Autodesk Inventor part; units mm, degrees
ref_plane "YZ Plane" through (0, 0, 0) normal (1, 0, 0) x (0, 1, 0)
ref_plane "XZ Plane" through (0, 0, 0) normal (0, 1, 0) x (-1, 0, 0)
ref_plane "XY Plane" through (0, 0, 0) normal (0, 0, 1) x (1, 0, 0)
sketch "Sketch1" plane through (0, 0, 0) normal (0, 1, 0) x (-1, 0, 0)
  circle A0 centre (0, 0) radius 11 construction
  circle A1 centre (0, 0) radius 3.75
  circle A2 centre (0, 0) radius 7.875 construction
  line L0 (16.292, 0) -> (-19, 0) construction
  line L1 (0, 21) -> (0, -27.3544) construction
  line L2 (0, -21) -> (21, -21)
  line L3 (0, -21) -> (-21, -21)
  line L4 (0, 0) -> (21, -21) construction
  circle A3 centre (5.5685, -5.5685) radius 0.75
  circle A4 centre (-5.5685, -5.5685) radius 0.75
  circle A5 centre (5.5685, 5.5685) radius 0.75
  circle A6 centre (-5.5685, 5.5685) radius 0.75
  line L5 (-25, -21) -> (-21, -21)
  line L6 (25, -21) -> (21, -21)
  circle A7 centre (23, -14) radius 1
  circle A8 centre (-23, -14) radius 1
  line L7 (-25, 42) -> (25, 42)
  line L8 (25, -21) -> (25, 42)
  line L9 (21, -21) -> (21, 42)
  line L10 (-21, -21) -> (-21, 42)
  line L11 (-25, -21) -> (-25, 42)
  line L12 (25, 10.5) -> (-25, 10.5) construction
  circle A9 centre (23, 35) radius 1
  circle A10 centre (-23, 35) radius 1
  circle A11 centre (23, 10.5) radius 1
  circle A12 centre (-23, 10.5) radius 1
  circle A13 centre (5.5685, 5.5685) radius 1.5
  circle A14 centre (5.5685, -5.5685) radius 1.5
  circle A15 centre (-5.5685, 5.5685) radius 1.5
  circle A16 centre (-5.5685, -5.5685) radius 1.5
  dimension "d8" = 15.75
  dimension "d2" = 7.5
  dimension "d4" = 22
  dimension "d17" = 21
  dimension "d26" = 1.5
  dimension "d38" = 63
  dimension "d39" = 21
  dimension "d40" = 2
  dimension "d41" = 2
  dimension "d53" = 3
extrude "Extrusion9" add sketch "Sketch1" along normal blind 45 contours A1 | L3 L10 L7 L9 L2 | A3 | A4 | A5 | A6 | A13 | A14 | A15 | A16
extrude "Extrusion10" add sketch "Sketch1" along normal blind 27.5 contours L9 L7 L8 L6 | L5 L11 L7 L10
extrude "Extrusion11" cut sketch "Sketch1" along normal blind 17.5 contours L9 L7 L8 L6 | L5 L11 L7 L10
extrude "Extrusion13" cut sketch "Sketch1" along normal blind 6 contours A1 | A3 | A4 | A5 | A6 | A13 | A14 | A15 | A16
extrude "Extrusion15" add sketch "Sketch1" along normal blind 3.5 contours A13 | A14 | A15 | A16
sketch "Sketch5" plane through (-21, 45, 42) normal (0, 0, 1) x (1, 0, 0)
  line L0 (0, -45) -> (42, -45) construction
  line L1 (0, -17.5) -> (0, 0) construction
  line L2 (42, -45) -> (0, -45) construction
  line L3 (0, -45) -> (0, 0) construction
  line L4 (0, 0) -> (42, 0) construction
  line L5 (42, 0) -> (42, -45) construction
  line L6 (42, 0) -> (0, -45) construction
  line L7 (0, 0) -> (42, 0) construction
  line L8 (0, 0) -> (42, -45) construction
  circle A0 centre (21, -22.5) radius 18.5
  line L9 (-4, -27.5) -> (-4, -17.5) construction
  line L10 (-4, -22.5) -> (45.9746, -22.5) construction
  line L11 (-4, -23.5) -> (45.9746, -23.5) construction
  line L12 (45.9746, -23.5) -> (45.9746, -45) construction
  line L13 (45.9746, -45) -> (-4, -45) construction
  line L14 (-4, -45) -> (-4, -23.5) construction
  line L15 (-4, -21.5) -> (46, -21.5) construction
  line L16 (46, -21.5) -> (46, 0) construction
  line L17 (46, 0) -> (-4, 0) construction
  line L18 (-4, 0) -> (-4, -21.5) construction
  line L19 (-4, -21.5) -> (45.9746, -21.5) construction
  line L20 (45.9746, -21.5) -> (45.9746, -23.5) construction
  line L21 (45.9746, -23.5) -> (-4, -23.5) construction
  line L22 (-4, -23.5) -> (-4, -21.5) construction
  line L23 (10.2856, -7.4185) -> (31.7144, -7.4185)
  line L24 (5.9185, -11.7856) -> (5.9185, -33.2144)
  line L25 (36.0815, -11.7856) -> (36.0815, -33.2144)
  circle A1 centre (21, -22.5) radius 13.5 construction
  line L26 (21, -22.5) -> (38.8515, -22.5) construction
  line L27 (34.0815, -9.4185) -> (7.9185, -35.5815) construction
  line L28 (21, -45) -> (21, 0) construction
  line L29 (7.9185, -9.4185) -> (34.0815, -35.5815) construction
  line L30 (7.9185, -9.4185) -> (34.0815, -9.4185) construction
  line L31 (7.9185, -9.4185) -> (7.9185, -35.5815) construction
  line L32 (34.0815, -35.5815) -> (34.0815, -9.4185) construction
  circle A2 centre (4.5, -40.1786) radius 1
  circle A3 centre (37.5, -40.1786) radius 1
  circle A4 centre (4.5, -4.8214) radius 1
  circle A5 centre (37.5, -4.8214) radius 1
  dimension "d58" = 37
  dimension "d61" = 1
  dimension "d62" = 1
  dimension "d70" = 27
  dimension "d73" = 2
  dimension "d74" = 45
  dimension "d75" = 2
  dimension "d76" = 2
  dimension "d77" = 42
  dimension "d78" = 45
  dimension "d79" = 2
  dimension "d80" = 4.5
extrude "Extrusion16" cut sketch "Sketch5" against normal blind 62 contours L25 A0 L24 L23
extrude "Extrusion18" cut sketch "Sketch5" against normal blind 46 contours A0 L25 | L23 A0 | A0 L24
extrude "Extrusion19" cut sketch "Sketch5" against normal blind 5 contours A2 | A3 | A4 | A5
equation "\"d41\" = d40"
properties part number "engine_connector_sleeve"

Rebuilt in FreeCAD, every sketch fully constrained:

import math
import FreeCAD as App
import Part
import Sketcher
from FreeCAD import Vector
Q = App.Units.Quantity


def add_polygon(sketch, points):
    """Adds a closed chain of lines whose ends are joined by coincident constraints."""
    first, n = sketch.GeometryCount, len(points)
    for a, b in zip(points, points[1:] + points[:1]):
        sketch.addGeometry(Part.LineSegment(App.Vector(*a, 0), App.Vector(*b, 0)), False)
    for i in range(n):
        sketch.addConstraint(Sketcher.Constraint("Coincident", first + i, 2, first + (i + 1) % n, 1))

doc = App.newDocument("Part")
params = doc.addObject("Spreadsheet::Sheet", "Params")
for row, (alias, value) in enumerate([
    ("sketch1_height", "63 mm"),
    ("pad1_length", "45 mm"),
    ("sketch2_diameter", "2 mm"),
    ("sketch2_height", "63 mm"),
    ("pad2_length", "27.5 mm"),
    ("sketch3_diameter", "2 mm"),
    ("sketch3_height", "63 mm"),
    ("pocket1_length", "17.5 mm"),
    ("sketch4_diameter", "3 mm"),
    ("sketch4_diameter2", "7.5 mm"),
    ("pocket2_length", "6 mm"),
    ("sketch5_diameter", "3 mm"),
    ("sketch5_diameter2", "1.5 mm"),
    ("pad3_length", "3.5 mm"),
    ("sketch6_radius", "18.5 mm"),
    ("pocket3_length", "62 mm"),
    ("sketch7_radius", "18.5 mm"),
    ("pocket4_length", "46 mm"),
    ("sketch8_diameter", "2 mm"),
    ("pocket5_length", "5 mm"),
], start=1):
    params.set(f"A{row}", alias)
    params.set(f"B{row}", "=" + value)
    params.setAlias(f"B{row}", alias)

body = doc.addObject("PartDesign::Body", "Body")

# Sketch on XZ plane
sketch1 = body.newObject("Sketcher::SketchObject", "Sketch")
sketch1.AttachmentSupport = (doc.getObject("XZ_Plane"), [""])
sketch1.MapMode = "FlatFace"
add_polygon(sketch1, [(21, -21), (-21, -21), (-21, 42), (21, 42)])  # lines 0-3
sketch1.addConstraint([
    Sketcher.Constraint("Horizontal", 0),
    Sketcher.Constraint("Vertical", 1),
    Sketcher.Constraint("Horizontal", 2),
    Sketcher.Constraint("Vertical", 3),
    Sketcher.Constraint("DistanceY", 1, 1, 1, 2, Q("63 mm")),
    Sketcher.Constraint("DistanceX", 0, 2, -1, 1, Q("21 mm")),
    Sketcher.Constraint("DistanceY", 0, 2, -1, 1, Q("21 mm")),
    Sketcher.Constraint("DistanceX", -1, 1, 2, 2, Q("21 mm")),
])
sketch1.setExpression("Constraints[8]", "Params.sketch1_height")
pad1 = body.newObject("PartDesign::Pad", "Pad")
pad1.Profile = sketch1
pad1.setExpression("Length", "Params.pad1_length")
pad1.Reversed = True

# Sketch on XZ plane
sketch2 = body.newObject("Sketcher::SketchObject", "Sketch001")
sketch2.AttachmentSupport = (doc.getObject("XZ_Plane"), [""])
sketch2.MapMode = "FlatFace"
add_polygon(sketch2, [(-21, 42), (-21, -21), (-25, -21), (-25, 42)])  # lines 0-3
sketch2.addGeometry(Part.Circle(Vector(-23, -14, 0), Vector(0, 0, 1), 1), False)  # 4
sketch2.addGeometry(Part.Circle(Vector(-23, 10.5, 0), Vector(0, 0, 1), 1), False)  # 5
sketch2.addGeometry(Part.Circle(Vector(-23, 35, 0), Vector(0, 0, 1), 1), False)  # 6
add_polygon(sketch2, [(25, -21), (21, -21), (21, 42), (25, 42)])  # lines 7-10
sketch2.addGeometry(Part.Circle(Vector(23, -14, 0), Vector(0, 0, 1), 1), False)  # 11
sketch2.addGeometry(Part.Circle(Vector(23, 10.5, 0), Vector(0, 0, 1), 1), False)  # 12
sketch2.addGeometry(Part.Circle(Vector(23, 35, 0), Vector(0, 0, 1), 1), False)  # 13
sketch2.addConstraint([
    Sketcher.Constraint("Vertical", 0),
    Sketcher.Constraint("Horizontal", 1),
    Sketcher.Constraint("Vertical", 2),
    Sketcher.Constraint("Horizontal", 3),
    Sketcher.Constraint("Horizontal", 7),
    Sketcher.Constraint("Vertical", 8),
    Sketcher.Constraint("Horizontal", 9),
    Sketcher.Constraint("Vertical", 10),
    Sketcher.Constraint("Equal", 4, 5),
    Sketcher.Constraint("Equal", 5, 6),
    Sketcher.Constraint("Equal", 6, 11),
    Sketcher.Constraint("Equal", 11, 12),
    Sketcher.Constraint("Equal", 12, 13),
    Sketcher.Constraint("Symmetric", 4, 3, 11, 3, -2),
    Sketcher.Constraint("Symmetric", 5, 3, 12, 3, -2),
    Sketcher.Constraint("Symmetric", 6, 3, 13, 3, -2),
    Sketcher.Constraint("Symmetric", 0, 2, 7, 2, -2),
    Sketcher.Constraint("Symmetric", 2, 2, 9, 2, -2),
    Sketcher.Constraint("Vertical", 4, 3, 5, 3),
    Sketcher.Constraint("Vertical", 5, 3, 6, 3),
    Sketcher.Constraint("Diameter", 4, Q("2 mm")),
    Sketcher.Constraint("DistanceY", 0, 2, 0, 1, Q("63 mm")),
    Sketcher.Constraint("DistanceX", 0, 2, -1, 1, Q("21 mm")),
    Sketcher.Constraint("DistanceY", 0, 2, -1, 1, Q("21 mm")),
    Sketcher.Constraint("DistanceX", 4, 3, 0, 2, Q("2 mm")),
    Sketcher.Constraint("DistanceX", 1, 2, 4, 3, Q("2 mm")),
    Sketcher.Constraint("DistanceY", 4, 3, -1, 1, Q("14 mm")),
    Sketcher.Constraint("DistanceY", -1, 1, 6, 3, Q("35 mm")),
    Sketcher.Constraint("DistanceY", -1, 1, 5, 3, Q("10.5 mm")),
])
sketch2.setExpression("Constraints[28]", "Params.sketch2_diameter")
sketch2.setExpression("Constraints[29]", "Params.sketch2_height")
pad2 = body.newObject("PartDesign::Pad", "Pad001")
pad2.Profile = sketch2
pad2.setExpression("Length", "Params.pad2_length")
pad2.Reversed = True

# Sketch on XZ plane
sketch3 = body.newObject("Sketcher::SketchObject", "Sketch002")
sketch3.AttachmentSupport = (doc.getObject("XZ_Plane"), [""])
sketch3.MapMode = "FlatFace"
add_polygon(sketch3, [(-21, 42), (-21, -21), (-25, -21), (-25, 42)])  # lines 0-3
sketch3.addGeometry(Part.Circle(Vector(-23, -14, 0), Vector(0, 0, 1), 1), False)  # 4
sketch3.addGeometry(Part.Circle(Vector(-23, 10.5, 0), Vector(0, 0, 1), 1), False)  # 5
sketch3.addGeometry(Part.Circle(Vector(-23, 35, 0), Vector(0, 0, 1), 1), False)  # 6
add_polygon(sketch3, [(25, -21), (21, -21), (21, 42), (25, 42)])  # lines 7-10
sketch3.addGeometry(Part.Circle(Vector(23, -14, 0), Vector(0, 0, 1), 1), False)  # 11
sketch3.addGeometry(Part.Circle(Vector(23, 10.5, 0), Vector(0, 0, 1), 1), False)  # 12
sketch3.addGeometry(Part.Circle(Vector(23, 35, 0), Vector(0, 0, 1), 1), False)  # 13
sketch3.addConstraint([
    Sketcher.Constraint("Vertical", 0),
    Sketcher.Constraint("Horizontal", 1),
    Sketcher.Constraint("Vertical", 2),
    Sketcher.Constraint("Horizontal", 3),
    Sketcher.Constraint("Horizontal", 7),
    Sketcher.Constraint("Vertical", 8),
    Sketcher.Constraint("Horizontal", 9),
    Sketcher.Constraint("Vertical", 10),
    Sketcher.Constraint("Equal", 4, 5),
    Sketcher.Constraint("Equal", 5, 6),
    Sketcher.Constraint("Equal", 6, 11),
    Sketcher.Constraint("Equal", 11, 12),
    Sketcher.Constraint("Equal", 12, 13),
    Sketcher.Constraint("Symmetric", 4, 3, 11, 3, -2),
    Sketcher.Constraint("Symmetric", 5, 3, 12, 3, -2),
    Sketcher.Constraint("Symmetric", 6, 3, 13, 3, -2),
    Sketcher.Constraint("Symmetric", 0, 2, 7, 2, -2),
    Sketcher.Constraint("Symmetric", 2, 2, 9, 2, -2),
    Sketcher.Constraint("Vertical", 4, 3, 5, 3),
    Sketcher.Constraint("Vertical", 5, 3, 6, 3),
    Sketcher.Constraint("Diameter", 4, Q("2 mm")),
    Sketcher.Constraint("DistanceY", 0, 2, 0, 1, Q("63 mm")),
    Sketcher.Constraint("DistanceX", 0, 2, -1, 1, Q("21 mm")),
    Sketcher.Constraint("DistanceY", 0, 2, -1, 1, Q("21 mm")),
    Sketcher.Constraint("DistanceX", 4, 3, 0, 2, Q("2 mm")),
    Sketcher.Constraint("DistanceX", 1, 2, 4, 3, Q("2 mm")),
    Sketcher.Constraint("DistanceY", 4, 3, -1, 1, Q("14 mm")),
    Sketcher.Constraint("DistanceY", -1, 1, 6, 3, Q("35 mm")),
    Sketcher.Constraint("DistanceY", -1, 1, 5, 3, Q("10.5 mm")),
])
sketch3.setExpression("Constraints[28]", "Params.sketch3_diameter")
sketch3.setExpression("Constraints[29]", "Params.sketch3_height")
pocket1 = body.newObject("PartDesign::Pocket", "Pocket")
pocket1.Profile = sketch3
pocket1.setExpression("Length", "Params.pocket1_length")

# Sketch on XZ plane
sketch4 = body.newObject("Sketcher::SketchObject", "Sketch003")
sketch4.AttachmentSupport = (doc.getObject("XZ_Plane"), [""])
sketch4.MapMode = "FlatFace"
sketch4.addGeometry([
    Part.Circle(Vector(0, 0, 0), Vector(0, 0, 1), 3.8),  # 0
    Part.Circle(Vector(-5.6, -5.6, 0), Vector(0, 0, 1), 1.5),  # 1
    Part.Circle(Vector(5.6, -5.6, 0), Vector(0, 0, 1), 1.5),  # 2
    Part.Circle(Vector(-5.6, 5.6, 0), Vector(0, 0, 1), 1.5),  # 3
    Part.Circle(Vector(5.6, 5.6, 0), Vector(0, 0, 1), 1.5),  # 4
], False)
sketch4.addConstraint([
    Sketcher.Constraint("Coincident", 0, 3, -1, 1),
    Sketcher.Constraint("Equal", 1, 2),
    Sketcher.Constraint("Equal", 2, 3),
    Sketcher.Constraint("Equal", 3, 4),
    Sketcher.Constraint("Symmetric", 2, 3, 3, 3, -1, 1),
    Sketcher.Constraint("Symmetric", 1, 3, 4, 3, -1, 1),
    Sketcher.Constraint("Symmetric", 1, 3, 2, 3, -2),
    Sketcher.Constraint("Diameter", 1, Q("3 mm")),
    Sketcher.Constraint("Diameter", 0, Q("7.5 mm")),
    Sketcher.Constraint("DistanceX", 1, 3, 2, 3, Q("11.137 mm")),
    Sketcher.Constraint("DistanceY", 1, 3, 3, 3, Q("11.137 mm")),
])
sketch4.setExpression("Constraints[7]", "Params.sketch4_diameter")
sketch4.setExpression("Constraints[8]", "Params.sketch4_diameter2")
pocket2 = body.newObject("PartDesign::Pocket", "Pocket001")
pocket2.Profile = sketch4
pocket2.setExpression("Length", "Params.pocket2_length")

# Sketch on XZ plane
sketch5 = body.newObject("Sketcher::SketchObject", "Sketch004")
sketch5.AttachmentSupport = (doc.getObject("XZ_Plane"), [""])
sketch5.MapMode = "FlatFace"
sketch5.addGeometry([
    Part.Circle(Vector(-5.6, 5.6, 0), Vector(0, 0, 1), 1.5),  # 0
    Part.Circle(Vector(-5.6, 5.6, 0), Vector(0, 0, 1), 0.8),  # 1
    Part.Circle(Vector(-5.6, -5.6, 0), Vector(0, 0, 1), 1.5),  # 2
    Part.Circle(Vector(-5.6, -5.6, 0), Vector(0, 0, 1), 0.8),  # 3
    Part.Circle(Vector(5.6, 5.6, 0), Vector(0, 0, 1), 1.5),  # 4
    Part.Circle(Vector(5.6, 5.6, 0), Vector(0, 0, 1), 0.8),  # 5
    Part.Circle(Vector(5.6, -5.6, 0), Vector(0, 0, 1), 1.5),  # 6
    Part.Circle(Vector(5.6, -5.6, 0), Vector(0, 0, 1), 0.8),  # 7
], False)
sketch5.addConstraint([
    Sketcher.Constraint("Coincident", 1, 3, 0, 3),
    Sketcher.Constraint("Coincident", 3, 3, 2, 3),
    Sketcher.Constraint("Coincident", 5, 3, 4, 3),
    Sketcher.Constraint("Coincident", 7, 3, 6, 3),
    Sketcher.Constraint("Equal", 0, 2),
    Sketcher.Constraint("Equal", 1, 3),
    Sketcher.Constraint("Equal", 2, 4),
    Sketcher.Constraint("Equal", 3, 5),
    Sketcher.Constraint("Equal", 4, 6),
    Sketcher.Constraint("Equal", 5, 7),
    Sketcher.Constraint("Symmetric", 2, 3, 4, 3, -1, 1),
    Sketcher.Constraint("Symmetric", 0, 3, 6, 3, -1, 1),
    Sketcher.Constraint("Symmetric", 0, 3, 4, 3, -2),
    Sketcher.Constraint("Diameter", 0, Q("3 mm")),
    Sketcher.Constraint("Diameter", 1, Q("1.5 mm")),
    Sketcher.Constraint("DistanceY", 2, 3, 0, 3, Q("11.137 mm")),
    Sketcher.Constraint("DistanceX", 0, 3, 4, 3, Q("11.137 mm")),
])
sketch5.setExpression("Constraints[13]", "Params.sketch5_diameter")
sketch5.setExpression("Constraints[14]", "Params.sketch5_diameter2")
pad3 = body.newObject("PartDesign::Pad", "Pad002")
pad3.Profile = sketch5
pad3.setExpression("Length", "Params.pad3_length")
pad3.Reversed = True

# Sketch on XY plane
sketch6 = body.newObject("Sketcher::SketchObject", "Sketch005")
sketch6.AttachmentSupport = (doc.getObject("XY_Plane"), [""])
sketch6.MapMode = "FlatFace"
sketch6.AttachmentOffset = App.Placement(Vector(0, 0, 42), App.Rotation())
sketch6.addGeometry([
    Part.LineSegment(Vector(15, 12, 0), Vector(15, 33, 0)),  # 0
    Part.ArcOfCircle(Part.Circle(Vector(0, 22, 0), Vector(0, 0, 1), 18), math.radians(35.39), math.radians(54.61)),  # 1
    Part.LineSegment(Vector(11, 38, 0), Vector(-11, 38, 0)),  # 2
    Part.ArcOfCircle(Part.Circle(Vector(0, 22, 0), Vector(0, 0, 1), 18), math.radians(125.39), math.radians(144.61)),  # 3
    Part.LineSegment(Vector(-15, 33, 0), Vector(-15, 12, 0)),  # 4
    Part.ArcOfCircle(Part.Circle(Vector(0, 22, 0), Vector(0, 0, 1), 18), math.radians(-145), math.radians(-35)),  # 5
], False)
sketch6.addConstraint([
    Sketcher.Constraint("Coincident", 0, 2, 1, 1),
    Sketcher.Constraint("Coincident", 1, 2, 2, 1),
    Sketcher.Constraint("Coincident", 2, 2, 3, 1),
    Sketcher.Constraint("Coincident", 3, 2, 4, 1),
    Sketcher.Constraint("Coincident", 4, 2, 5, 1),
    Sketcher.Constraint("Coincident", 5, 2, 0, 1),
    Sketcher.Constraint("Vertical", 0),
    Sketcher.Constraint("Horizontal", 2),
    Sketcher.Constraint("Vertical", 4),
    Sketcher.Constraint("Coincident", 3, 3, 1, 3),
    Sketcher.Constraint("Coincident", 5, 3, 1, 3),
    Sketcher.Constraint("Equal", 1, 3),
    Sketcher.Constraint("Equal", 3, 5),
    Sketcher.Constraint("Symmetric", 0, 2, 3, 2, -2),
    Sketcher.Constraint("Equal", 2, 0),
    Sketcher.Constraint("Radius", 1, Q("18.5 mm")),
    Sketcher.Constraint("DistanceY", -1, 1, 1, 3, Q("22.5 mm")),
    Sketcher.Constraint("DistanceX", 2, 2, 2, 1, Q("21.4288 mm")),
])
sketch6.setExpression("Constraints[15]", "Params.sketch6_radius")
pocket3 = body.newObject("PartDesign::Pocket", "Pocket002")
pocket3.Profile = sketch6
pocket3.setExpression("Length", "Params.pocket3_length")

# Sketch on XY plane
sketch7 = body.newObject("Sketcher::SketchObject", "Sketch006")
sketch7.AttachmentSupport = (doc.getObject("XY_Plane"), [""])
sketch7.MapMode = "FlatFace"
sketch7.AttachmentOffset = App.Placement(Vector(0, 0, 42), App.Rotation())
sketch7.addGeometry([
    Part.ArcOfCircle(Part.Circle(Vector(0, 22, 0), Vector(0, 0, 1), 18), math.radians(-35), math.radians(35)),  # 0
    Part.LineSegment(Vector(15, 33, 0), Vector(15, 12, 0)),  # 1
    Part.LineSegment(Vector(-11, 38, 0), Vector(11, 38, 0)),  # 2
    Part.ArcOfCircle(Part.Circle(Vector(0, 22, 0), Vector(0, 0, 1), 18), math.radians(55), math.radians(125)),  # 3
    Part.ArcOfCircle(Part.Circle(Vector(0, 22, 0), Vector(0, 0, 1), 18), math.radians(145), math.radians(215)),  # 4
    Part.LineSegment(Vector(-15, 12, 0), Vector(-15, 33, 0)),  # 5
], False)
sketch7.addConstraint([
    Sketcher.Constraint("Coincident", 0, 1, 1, 2),
    Sketcher.Constraint("Coincident", 1, 1, 0, 2),
    Sketcher.Constraint("Coincident", 2, 1, 3, 2),
    Sketcher.Constraint("Coincident", 3, 1, 2, 2),
    Sketcher.Constraint("Coincident", 4, 1, 5, 2),
    Sketcher.Constraint("Coincident", 5, 1, 4, 2),
    Sketcher.Constraint("Vertical", 1),
    Sketcher.Constraint("Horizontal", 2),
    Sketcher.Constraint("Vertical", 5),
    Sketcher.Constraint("Coincident", 3, 3, 0, 3),
    Sketcher.Constraint("Coincident", 4, 3, 0, 3),
    Sketcher.Constraint("Equal", 0, 3),
    Sketcher.Constraint("Equal", 3, 4),
    Sketcher.Constraint("Symmetric", 1, 1, 4, 1, -2),
    Sketcher.Constraint("Equal", 2, 1),
    Sketcher.Constraint("Radius", 0, Q("18.5 mm")),
    Sketcher.Constraint("DistanceY", -1, 1, 0, 3, Q("22.5 mm")),
    Sketcher.Constraint("DistanceX", 2, 1, 2, 2, Q("21.4288 mm")),
])
sketch7.setExpression("Constraints[15]", "Params.sketch7_radius")
pocket4 = body.newObject("PartDesign::Pocket", "Pocket003")
pocket4.Profile = sketch7
pocket4.setExpression("Length", "Params.pocket4_length")

# Sketch on XY plane
sketch8 = body.newObject("Sketcher::SketchObject", "Sketch007")
sketch8.AttachmentSupport = (doc.getObject("XY_Plane"), [""])
sketch8.MapMode = "FlatFace"
sketch8.AttachmentOffset = App.Placement(Vector(0, 0, 42), App.Rotation())
sketch8.addGeometry([
    Part.Circle(Vector(-16.5, 4.8, 0), Vector(0, 0, 1), 1),
    Part.Circle(Vector(16.5, 4.8, 0), Vector(0, 0, 1), 1),
    Part.Circle(Vector(-16.5, 40.2, 0), Vector(0, 0, 1), 1),
    Part.Circle(Vector(16.5, 40.2, 0), Vector(0, 0, 1), 1),
], False)
sketch8.addConstraint([
    Sketcher.Constraint("Equal", 0, 1),
    Sketcher.Constraint("Equal", 1, 2),
    Sketcher.Constraint("Equal", 2, 3),
    Sketcher.Constraint("Symmetric", 0, 3, 1, 3, -2),
    Sketcher.Constraint("Symmetric", 2, 3, 3, 3, -2),
    Sketcher.Constraint("Vertical", 0, 3, 2, 3),
    Sketcher.Constraint("Diameter", 0, Q("2 mm")),
    Sketcher.Constraint("DistanceX", 0, 3, 1, 3, Q("33 mm")),
    Sketcher.Constraint("DistanceY", -1, 1, 0, 3, Q("4.8214 mm")),
    Sketcher.Constraint("DistanceY", -1, 1, 2, 3, Q("40.1786 mm")),
])
sketch8.setExpression("Constraints[6]", "Params.sketch8_diameter")
pocket5 = body.newObject("PartDesign::Pocket", "Pocket004")
pocket5.Profile = sketch8
pocket5.setExpression("Length", "Params.pocket5_length")

doc.recompute()
